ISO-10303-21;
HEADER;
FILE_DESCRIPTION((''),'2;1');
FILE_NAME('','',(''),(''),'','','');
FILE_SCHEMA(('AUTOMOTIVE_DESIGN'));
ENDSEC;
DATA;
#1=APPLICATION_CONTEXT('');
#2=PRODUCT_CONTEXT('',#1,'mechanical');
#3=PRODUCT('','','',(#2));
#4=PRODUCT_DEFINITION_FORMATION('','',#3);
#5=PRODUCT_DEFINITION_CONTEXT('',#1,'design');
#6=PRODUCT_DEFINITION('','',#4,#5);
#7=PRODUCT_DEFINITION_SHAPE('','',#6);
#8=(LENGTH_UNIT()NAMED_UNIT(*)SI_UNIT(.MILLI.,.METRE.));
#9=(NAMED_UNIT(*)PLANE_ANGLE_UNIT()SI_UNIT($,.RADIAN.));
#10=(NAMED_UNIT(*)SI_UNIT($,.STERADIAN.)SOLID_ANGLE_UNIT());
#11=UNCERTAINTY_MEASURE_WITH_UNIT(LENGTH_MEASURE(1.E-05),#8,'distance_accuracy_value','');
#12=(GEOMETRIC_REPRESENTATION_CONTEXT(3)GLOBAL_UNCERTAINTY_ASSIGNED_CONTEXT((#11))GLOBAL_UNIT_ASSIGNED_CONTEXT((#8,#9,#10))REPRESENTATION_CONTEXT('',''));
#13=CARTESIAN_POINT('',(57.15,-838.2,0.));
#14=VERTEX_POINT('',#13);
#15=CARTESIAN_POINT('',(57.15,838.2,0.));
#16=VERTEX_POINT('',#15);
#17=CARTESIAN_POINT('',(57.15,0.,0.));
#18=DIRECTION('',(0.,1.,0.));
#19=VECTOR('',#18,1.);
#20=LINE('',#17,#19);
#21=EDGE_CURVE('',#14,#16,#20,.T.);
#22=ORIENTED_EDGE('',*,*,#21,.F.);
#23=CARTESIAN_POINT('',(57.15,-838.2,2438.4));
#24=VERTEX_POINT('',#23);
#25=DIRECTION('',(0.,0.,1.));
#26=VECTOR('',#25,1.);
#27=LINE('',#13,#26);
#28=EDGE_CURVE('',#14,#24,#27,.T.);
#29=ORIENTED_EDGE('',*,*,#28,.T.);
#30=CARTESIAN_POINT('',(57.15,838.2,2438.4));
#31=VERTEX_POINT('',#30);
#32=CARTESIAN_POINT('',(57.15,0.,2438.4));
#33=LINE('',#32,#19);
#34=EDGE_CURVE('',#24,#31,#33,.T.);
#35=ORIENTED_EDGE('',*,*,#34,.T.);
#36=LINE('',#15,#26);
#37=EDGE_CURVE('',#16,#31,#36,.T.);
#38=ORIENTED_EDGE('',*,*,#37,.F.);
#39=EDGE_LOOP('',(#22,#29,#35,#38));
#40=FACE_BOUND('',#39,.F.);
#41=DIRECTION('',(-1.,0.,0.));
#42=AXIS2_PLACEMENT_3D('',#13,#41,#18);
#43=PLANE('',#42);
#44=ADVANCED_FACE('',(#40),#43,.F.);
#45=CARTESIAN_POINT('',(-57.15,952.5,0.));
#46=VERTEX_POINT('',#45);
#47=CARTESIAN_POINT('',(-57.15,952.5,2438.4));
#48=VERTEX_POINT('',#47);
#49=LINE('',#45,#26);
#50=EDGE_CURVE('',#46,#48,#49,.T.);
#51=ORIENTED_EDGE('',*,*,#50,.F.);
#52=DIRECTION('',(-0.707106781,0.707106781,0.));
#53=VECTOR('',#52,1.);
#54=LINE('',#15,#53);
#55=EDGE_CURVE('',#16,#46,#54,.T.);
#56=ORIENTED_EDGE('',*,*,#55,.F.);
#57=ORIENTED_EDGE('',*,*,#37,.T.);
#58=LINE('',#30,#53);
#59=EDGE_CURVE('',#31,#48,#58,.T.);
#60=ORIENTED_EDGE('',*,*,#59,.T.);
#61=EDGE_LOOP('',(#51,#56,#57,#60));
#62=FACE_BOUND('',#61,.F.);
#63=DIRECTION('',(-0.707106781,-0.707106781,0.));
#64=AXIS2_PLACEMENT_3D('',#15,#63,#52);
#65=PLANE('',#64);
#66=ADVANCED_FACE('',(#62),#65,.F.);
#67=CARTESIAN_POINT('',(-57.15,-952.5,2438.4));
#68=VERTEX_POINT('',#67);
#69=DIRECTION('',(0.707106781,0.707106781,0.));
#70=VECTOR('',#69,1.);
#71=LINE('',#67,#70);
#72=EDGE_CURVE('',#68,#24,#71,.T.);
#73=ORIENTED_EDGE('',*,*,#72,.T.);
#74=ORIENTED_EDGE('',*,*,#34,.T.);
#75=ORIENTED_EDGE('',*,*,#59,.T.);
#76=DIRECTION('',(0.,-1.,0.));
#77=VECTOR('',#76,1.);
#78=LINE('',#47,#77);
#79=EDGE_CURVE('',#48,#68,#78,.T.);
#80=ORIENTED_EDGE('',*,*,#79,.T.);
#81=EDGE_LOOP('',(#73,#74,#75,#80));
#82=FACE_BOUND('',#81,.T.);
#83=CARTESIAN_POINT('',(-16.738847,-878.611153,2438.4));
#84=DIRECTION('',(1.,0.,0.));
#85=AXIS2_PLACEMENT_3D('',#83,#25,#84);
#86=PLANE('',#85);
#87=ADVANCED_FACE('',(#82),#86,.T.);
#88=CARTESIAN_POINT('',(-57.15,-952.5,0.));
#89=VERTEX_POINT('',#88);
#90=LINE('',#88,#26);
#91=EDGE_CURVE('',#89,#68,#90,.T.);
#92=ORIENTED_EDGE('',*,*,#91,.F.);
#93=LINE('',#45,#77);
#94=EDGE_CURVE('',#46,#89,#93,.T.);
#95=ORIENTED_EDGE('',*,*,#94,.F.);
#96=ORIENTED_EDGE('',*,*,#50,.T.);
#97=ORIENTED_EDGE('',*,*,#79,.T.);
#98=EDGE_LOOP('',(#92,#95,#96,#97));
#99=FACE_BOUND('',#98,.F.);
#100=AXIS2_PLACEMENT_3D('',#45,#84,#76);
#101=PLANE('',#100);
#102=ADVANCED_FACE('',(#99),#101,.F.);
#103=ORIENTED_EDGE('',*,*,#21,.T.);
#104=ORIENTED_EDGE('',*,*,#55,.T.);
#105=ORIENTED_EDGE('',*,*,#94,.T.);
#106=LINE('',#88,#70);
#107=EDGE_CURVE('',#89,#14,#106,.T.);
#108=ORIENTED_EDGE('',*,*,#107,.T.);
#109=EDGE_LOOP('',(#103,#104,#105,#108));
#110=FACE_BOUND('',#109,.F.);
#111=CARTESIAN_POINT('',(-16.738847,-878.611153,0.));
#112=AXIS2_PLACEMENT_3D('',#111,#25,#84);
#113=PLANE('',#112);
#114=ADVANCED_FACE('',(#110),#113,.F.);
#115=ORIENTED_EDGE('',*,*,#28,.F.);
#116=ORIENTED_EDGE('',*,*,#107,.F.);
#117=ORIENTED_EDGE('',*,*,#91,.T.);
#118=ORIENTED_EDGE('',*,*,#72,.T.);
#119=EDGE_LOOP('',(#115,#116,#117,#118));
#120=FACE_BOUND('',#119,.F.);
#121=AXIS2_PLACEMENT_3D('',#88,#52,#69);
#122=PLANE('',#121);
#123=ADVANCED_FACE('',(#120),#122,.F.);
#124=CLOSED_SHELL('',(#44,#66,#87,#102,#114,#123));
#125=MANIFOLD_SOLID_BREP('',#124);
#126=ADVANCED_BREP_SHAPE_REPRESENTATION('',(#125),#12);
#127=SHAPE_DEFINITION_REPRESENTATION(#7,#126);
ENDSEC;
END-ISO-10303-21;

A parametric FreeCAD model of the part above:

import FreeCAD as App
import Part
import Sketcher

V = App.Vector
Q = App.Units.Quantity


def add_polygon(sketch, points):
    """Adds a closed chain of lines whose ends are joined by coincident constraints."""
    first, n = sketch.GeometryCount, len(points)
    for a, b in zip(points, points[1:] + points[:1]):
        sketch.addGeometry(Part.LineSegment(App.Vector(*a, 0), App.Vector(*b, 0)), False)
    for i in range(n):
        sketch.addConstraint(Sketcher.Constraint("Coincident", first + i, 2, first + (i + 1) % n, 1))

doc = App.newDocument("Part")
body = doc.addObject("PartDesign::Body", "Body")

# Sketch on XY plane
sketch1 = body.newObject("Sketcher::SketchObject", "Sketch")
sketch1.AttachmentSupport = (doc.getObject("XY_Plane"), [""])
sketch1.MapMode = "FlatFace"
add_polygon(sketch1, [(-57, -952), (57, -838), (57, 838), (-57, 952)])  # lines 0-3
sketch1.addConstraint([
    Sketcher.Constraint("Vertical", 1),
    Sketcher.Constraint("Vertical", 3),
    Sketcher.Constraint("Perpendicular", 0, 2),
    Sketcher.Constraint("Equal", 0, 2),
    Sketcher.Constraint("DistanceY", 1, 1, 1, 2, Q("66 in")),
    Sketcher.Constraint("DistanceY", 3, 2, 3, 1, Q("75 in")),
    Sketcher.Constraint("DistanceY", 0, 2, -1, 1, Q("33 in")),
    Sketcher.Constraint("DistanceX", -1, 1, 0, 2, Q("2.25 in")),
])
pad1 = body.newObject("PartDesign::Pad", "Pad")
pad1.Profile = sketch1
pad1.Length = Q("96 in")

doc.recompute()
